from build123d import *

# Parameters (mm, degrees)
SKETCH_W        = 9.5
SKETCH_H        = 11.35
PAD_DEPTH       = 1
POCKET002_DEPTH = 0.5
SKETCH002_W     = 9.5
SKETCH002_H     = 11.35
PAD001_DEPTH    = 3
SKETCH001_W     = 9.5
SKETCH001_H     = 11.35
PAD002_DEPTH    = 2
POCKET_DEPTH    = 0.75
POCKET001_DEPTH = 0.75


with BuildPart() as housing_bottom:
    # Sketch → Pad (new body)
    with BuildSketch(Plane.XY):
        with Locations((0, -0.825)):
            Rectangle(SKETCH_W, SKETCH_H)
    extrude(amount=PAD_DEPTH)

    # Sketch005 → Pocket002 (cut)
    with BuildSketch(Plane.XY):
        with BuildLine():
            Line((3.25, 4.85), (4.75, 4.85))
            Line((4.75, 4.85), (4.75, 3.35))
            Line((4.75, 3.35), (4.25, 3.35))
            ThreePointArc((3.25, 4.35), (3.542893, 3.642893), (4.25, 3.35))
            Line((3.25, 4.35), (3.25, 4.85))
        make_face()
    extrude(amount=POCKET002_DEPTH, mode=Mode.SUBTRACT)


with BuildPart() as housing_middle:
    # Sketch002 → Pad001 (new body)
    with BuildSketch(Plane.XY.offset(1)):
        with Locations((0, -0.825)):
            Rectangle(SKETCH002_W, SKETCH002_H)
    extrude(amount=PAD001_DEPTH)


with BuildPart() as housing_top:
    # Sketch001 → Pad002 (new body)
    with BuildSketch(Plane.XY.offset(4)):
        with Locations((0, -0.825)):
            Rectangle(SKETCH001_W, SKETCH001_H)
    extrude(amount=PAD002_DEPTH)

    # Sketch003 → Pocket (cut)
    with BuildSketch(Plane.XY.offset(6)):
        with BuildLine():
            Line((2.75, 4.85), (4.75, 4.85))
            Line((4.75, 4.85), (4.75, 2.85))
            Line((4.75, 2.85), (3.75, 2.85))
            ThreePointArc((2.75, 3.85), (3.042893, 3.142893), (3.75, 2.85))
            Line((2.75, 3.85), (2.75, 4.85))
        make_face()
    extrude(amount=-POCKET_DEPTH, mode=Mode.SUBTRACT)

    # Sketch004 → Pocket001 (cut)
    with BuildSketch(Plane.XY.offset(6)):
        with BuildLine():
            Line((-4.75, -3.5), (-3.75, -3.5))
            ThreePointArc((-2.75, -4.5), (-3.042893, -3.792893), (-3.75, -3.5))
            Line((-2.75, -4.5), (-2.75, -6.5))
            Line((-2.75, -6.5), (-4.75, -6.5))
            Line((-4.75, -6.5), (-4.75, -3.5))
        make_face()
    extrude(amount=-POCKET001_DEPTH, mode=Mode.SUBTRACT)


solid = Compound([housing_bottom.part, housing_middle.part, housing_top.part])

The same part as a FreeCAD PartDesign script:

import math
import FreeCAD as App
import Part
import Sketcher

V = App.Vector
Q = App.Units.Quantity

doc = App.newDocument("Part")
body = doc.addObject("PartDesign::Body", "Body")

# Sketch on XY plane
sketch1 = body.newObject("Sketcher::SketchObject", "Sketch")
sketch1.AttachmentSupport = (doc.getObject("XY_Plane"), [""])
sketch1.MapMode = "FlatFace"
sketch1.addGeometry(Part.LineSegment(V(-5, 5, 0), V(-5, -6, 0)), False)
sketch1.addGeometry(Part.LineSegment(V(-5, -6, 0), V(5, -6, 0)), False)
sketch1.addGeometry(Part.LineSegment(V(5, -6, 0), V(5, 5, 0)), False)
sketch1.addGeometry(Part.LineSegment(V(5, 5, 0), V(-5, 5, 0)), False)
sketch1.addConstraint(Sketcher.Constraint("Coincident", 0, 2, 1, 1))
sketch1.addConstraint(Sketcher.Constraint("Coincident", 1, 2, 2, 1))
sketch1.addConstraint(Sketcher.Constraint("Coincident", 2, 2, 3, 1))
sketch1.addConstraint(Sketcher.Constraint("Coincident", 3, 2, 0, 1))
sketch1.addConstraint(Sketcher.Constraint("Vertical", 0))
sketch1.addConstraint(Sketcher.Constraint("Horizontal", 1))
sketch1.addConstraint(Sketcher.Constraint("Vertical", 2))
sketch1.addConstraint(Sketcher.Constraint("Horizontal", 3))
sketch1.addConstraint(Sketcher.Constraint("DistanceX", 1, 1, 1, 2, Q("9.5 mm")))
sketch1.addConstraint(Sketcher.Constraint("DistanceY", 0, 2, 0, 1, Q("11.35 mm")))
sketch1.addConstraint(Sketcher.Constraint("DistanceY", 0, 2, -1, 1, Q("6.5 mm")))
sketch1.addConstraint(Sketcher.Constraint("DistanceX", 0, 2, -1, 1, Q("4.75 mm")))
pad1 = body.newObject("PartDesign::Pad", "Pad")
pad1.Profile = sketch1
pad1.Length = 1

# Sketch on XY plane
sketch2 = body.newObject("Sketcher::SketchObject", "Sketch001")
sketch2.AttachmentSupport = (doc.getObject("XY_Plane"), [""])
sketch2.MapMode = "FlatFace"
sketch2.addGeometry(Part.LineSegment(V(4.8, 4.8, 0), V(3.2, 4.8, 0)), False)
sketch2.addGeometry(Part.LineSegment(V(3.2, 4.8, 0), V(3.2, 4.3, 0)), False)
sketch2.addGeometry(Part.ArcOfCircle(Part.Circle(V(4.2, 4.3, 0), V(0, 0, 1), 1), math.radians(180), math.radians(270)), False)
sketch2.addGeometry(Part.LineSegment(V(4.2, 3.4, 0), V(4.8, 3.4, 0)), False)
sketch2.addGeometry(Part.LineSegment(V(4.8, 3.4, 0), V(4.8, 4.8, 0)), False)
sketch2.addConstraint(Sketcher.Constraint("Coincident", 0, 2, 1, 1))
sketch2.addConstraint(Sketcher.Constraint("Tangent", 1, 2, 2, 1))
sketch2.addConstraint(Sketcher.Constraint("Tangent", 2, 2, 3, 1))
sketch2.addConstraint(Sketcher.Constraint("Coincident", 3, 2, 4, 1))
sketch2.addConstraint(Sketcher.Constraint("Coincident", 4, 2, 0, 1))
sketch2.addConstraint(Sketcher.Constraint("Horizontal", 0))
sketch2.addConstraint(Sketcher.Constraint("Vertical", 1))
sketch2.addConstraint(Sketcher.Constraint("Horizontal", 3))
sketch2.addConstraint(Sketcher.Constraint("Vertical", 4))
sketch2.addConstraint(Sketcher.Constraint("Equal", 3, 1))
sketch2.addConstraint(Sketcher.Constraint("Radius", 2, Q("0.999999 mm")))
sketch2.addConstraint(Sketcher.Constraint("DistanceX", 0, 2, 0, 1, Q("1.5 mm")))
sketch2.addConstraint(Sketcher.Constraint("DistanceX", -1, 1, 2, 3, Q("4.249999 mm")))
sketch2.addConstraint(Sketcher.Constraint("DistanceY", -1, 1, 2, 3, Q("4.349999 mm")))
pocket1 = body.newObject("PartDesign::Pocket", "Pocket")
pocket1.Profile = sketch2
pocket1.Length = 0.5
pocket1.Reversed = True
body2 = doc.addObject("PartDesign::Body", "Body001")

# Sketch on XY plane
sketch3 = body2.newObject("Sketcher::SketchObject", "Sketch002")
sketch3.AttachmentSupport = (doc.getObject("XY_Plane001"), [""])
sketch3.MapMode = "FlatFace"
sketch3.AttachmentOffset = App.Placement(V(0, 0, 1), App.Rotation())
sketch3.addGeometry(Part.LineSegment(V(-5, 5, 0), V(-5, -6, 0)), False)
sketch3.addGeometry(Part.LineSegment(V(-5, -6, 0), V(5, -6, 0)), False)
sketch3.addGeometry(Part.LineSegment(V(5, -6, 0), V(5, 5, 0)), False)
sketch3.addGeometry(Part.LineSegment(V(5, 5, 0), V(-5, 5, 0)), False)
sketch3.addConstraint(Sketcher.Constraint("Coincident", 0, 2, 1, 1))
sketch3.addConstraint(Sketcher.Constraint("Coincident", 1, 2, 2, 1))
sketch3.addConstraint(Sketcher.Constraint("Coincident", 2, 2, 3, 1))
sketch3.addConstraint(Sketcher.Constraint("Coincident", 3, 2, 0, 1))
sketch3.addConstraint(Sketcher.Constraint("Vertical", 0))
sketch3.addConstraint(Sketcher.Constraint("Horizontal", 1))
sketch3.addConstraint(Sketcher.Constraint("Vertical", 2))
sketch3.addConstraint(Sketcher.Constraint("Horizontal", 3))
sketch3.addConstraint(Sketcher.Constraint("DistanceX", 1, 1, 1, 2, Q("9.5 mm")))
sketch3.addConstraint(Sketcher.Constraint("DistanceY", 0, 2, 0, 1, Q("11.35 mm")))
sketch3.addConstraint(Sketcher.Constraint("DistanceY", 0, 2, -1, 1, Q("6.5 mm")))
sketch3.addConstraint(Sketcher.Constraint("DistanceX", 0, 2, -1, 1, Q("4.75 mm")))
pad2 = body2.newObject("PartDesign::Pad", "Pad001")
pad2.Profile = sketch3
pad2.Length = 3
body3 = doc.addObject("PartDesign::Body", "Body002")

# Sketch on XY plane
sketch4 = body3.newObject("Sketcher::SketchObject", "Sketch003")
sketch4.AttachmentSupport = (doc.getObject("XY_Plane002"), [""])
sketch4.MapMode = "FlatFace"
sketch4.AttachmentOffset = App.Placement(V(0, 0, 4), App.Rotation())
sketch4.addGeometry(Part.LineSegment(V(-5, 5, 0), V(-5, -6, 0)), False)
sketch4.addGeometry(Part.LineSegment(V(-5, -6, 0), V(5, -6, 0)), False)
sketch4.addGeometry(Part.LineSegment(V(5, -6, 0), V(5, 5, 0)), False)
sketch4.addGeometry(Part.LineSegment(V(5, 5, 0), V(-5, 5, 0)), False)
sketch4.addConstraint(Sketcher.Constraint("Coincident", 0, 2, 1, 1))
sketch4.addConstraint(Sketcher.Constraint("Coincident", 1, 2, 2, 1))
sketch4.addConstraint(Sketcher.Constraint("Coincident", 2, 2, 3, 1))
sketch4.addConstraint(Sketcher.Constraint("Coincident", 3, 2, 0, 1))
sketch4.addConstraint(Sketcher.Constraint("Vertical", 0))
sketch4.addConstraint(Sketcher.Constraint("Horizontal", 1))
sketch4.addConstraint(Sketcher.Constraint("Vertical", 2))
sketch4.addConstraint(Sketcher.Constraint("Horizontal", 3))
sketch4.addConstraint(Sketcher.Constraint("DistanceX", 1, 1, 1, 2, Q("9.5 mm")))
sketch4.addConstraint(Sketcher.Constraint("DistanceY", 0, 2, 0, 1, Q("11.35 mm")))
sketch4.addConstraint(Sketcher.Constraint("DistanceY", 0, 2, -1, 1, Q("6.5 mm")))
sketch4.addConstraint(Sketcher.Constraint("DistanceX", 0, 2, -1, 1, Q("4.75 mm")))
pad3 = body3.newObject("PartDesign::Pad", "Pad002")
pad3.Profile = sketch4
pad3.Length = 2

# Sketch on XY plane
sketch5 = body3.newObject("Sketcher::SketchObject", "Sketch004")
sketch5.AttachmentSupport = (doc.getObject("XY_Plane002"), [""])
sketch5.MapMode = "FlatFace"
sketch5.AttachmentOffset = App.Placement(V(0, 0, 6), App.Rotation())
sketch5.addGeometry(Part.LineSegment(V(4.8, 4.8, 0), V(2.8, 4.8, 0)), False)
sketch5.addGeometry(Part.LineSegment(V(2.8, 4.8, 0), V(2.8, 3.9, 0)), False)
sketch5.addGeometry(Part.ArcOfCircle(Part.Circle(V(3.7, 3.8, 0), V(0, 0, 1), 1), math.radians(180), math.radians(270)), False)
sketch5.addGeometry(Part.LineSegment(V(3.8, 2.9, 0), V(4.8, 2.9, 0)), False)
sketch5.addGeometry(Part.LineSegment(V(4.8, 2.9, 0), V(4.8, 4.8, 0)), False)
sketch5.addConstraint(Sketcher.Constraint("Coincident", 0, 2, 1, 1))
sketch5.addConstraint(Sketcher.Constraint("Tangent", 1, 2, 2, 1))
sketch5.addConstraint(Sketcher.Constraint("Tangent", 2, 2, 3, 1))
sketch5.addConstraint(Sketcher.Constraint("Coincident", 3, 2, 4, 1))
sketch5.addConstraint(Sketcher.Constraint("Coincident", 4, 2, 0, 1))
sketch5.addConstraint(Sketcher.Constraint("Horizontal", 0))
sketch5.addConstraint(Sketcher.Constraint("Vertical", 1))
sketch5.addConstraint(Sketcher.Constraint("Horizontal", 3))
sketch5.addConstraint(Sketcher.Constraint("Vertical", 4))
sketch5.addConstraint(Sketcher.Constraint("Equal", 3, 1))
sketch5.addConstraint(Sketcher.Constraint("Radius", 2, Q("0.999999 mm")))
sketch5.addConstraint(Sketcher.Constraint("DistanceX", 0, 2, 0, 1, Q("2 mm")))
sketch5.addConstraint(Sketcher.Constraint("DistanceX", -1, 1, 2, 3, Q("3.749999 mm")))
sketch5.addConstraint(Sketcher.Constraint("DistanceY", -1, 1, 2, 3, Q("3.849999 mm")))
pocket2 = body3.newObject("PartDesign::Pocket", "Pocket001")
pocket2.Profile = sketch5
pocket2.Length = 0.75

# Sketch on XY plane
sketch6 = body3.newObject("Sketcher::SketchObject", "Sketch005")
sketch6.AttachmentSupport = (doc.getObject("XY_Plane002"), [""])
sketch6.MapMode = "FlatFace"
sketch6.AttachmentOffset = App.Placement(V(0, 0, 6), App.Rotation())
sketch6.addGeometry(Part.LineSegment(V(-3.8, -3.5, 0), V(-4.8, -3.5, 0)), False)
sketch6.addGeometry(Part.LineSegment(V(-4.8, -3.5, 0), V(-4.8, -6.5, 0)), False)
sketch6.addGeometry(Part.LineSegment(V(-4.8, -6.5, 0), V(-2.8, -6.5, 0)), False)
sketch6.addGeometry(Part.LineSegment(V(-2.8, -6.5, 0), V(-2.8, -4.5, 0)), False)
sketch6.addGeometry(Part.ArcOfCircle(Part.Circle(V(-3.7, -4.5, 0), V(0, 0, 1), 1), math.radians(0), math.radians(90)), False)
sketch6.addConstraint(Sketcher.Constraint("Coincident", 0, 2, 1, 1))
sketch6.addConstraint(Sketcher.Constraint("Coincident", 1, 2, 2, 1))
sketch6.addConstraint(Sketcher.Constraint("Coincident", 2, 2, 3, 1))
sketch6.addConstraint(Sketcher.Constraint("Tangent", 3, 2, 4, 1))
sketch6.addConstraint(Sketcher.Constraint("Tangent", 4, 2, 0, 1))
sketch6.addConstraint(Sketcher.Constraint("Horizontal", 0))
sketch6.addConstraint(Sketcher.Constraint("Vertical", 1))
sketch6.addConstraint(Sketcher.Constraint("Horizontal", 2))
sketch6.addConstraint(Sketcher.Constraint("Vertical", 3))
sketch6.addConstraint(Sketcher.Constraint("Equal", 2, 3))
sketch6.addConstraint(Sketcher.Constraint("Radius", 4, Q("0.999999 mm")))
sketch6.addConstraint(Sketcher.Constraint("DistanceX", 0, 2, 0, 1, Q("1 mm")))
sketch6.addConstraint(Sketcher.Constraint("DistanceY", 4, 3, -1, 1, Q("4.499999 mm")))
sketch6.addConstraint(Sketcher.Constraint("DistanceX", 4, 3, -1, 1, Q("3.749999 mm")))
pocket3 = body3.newObject("PartDesign::Pocket", "Pocket002")
pocket3.Profile = sketch6
pocket3.Length = 0.75

doc.recompute()
